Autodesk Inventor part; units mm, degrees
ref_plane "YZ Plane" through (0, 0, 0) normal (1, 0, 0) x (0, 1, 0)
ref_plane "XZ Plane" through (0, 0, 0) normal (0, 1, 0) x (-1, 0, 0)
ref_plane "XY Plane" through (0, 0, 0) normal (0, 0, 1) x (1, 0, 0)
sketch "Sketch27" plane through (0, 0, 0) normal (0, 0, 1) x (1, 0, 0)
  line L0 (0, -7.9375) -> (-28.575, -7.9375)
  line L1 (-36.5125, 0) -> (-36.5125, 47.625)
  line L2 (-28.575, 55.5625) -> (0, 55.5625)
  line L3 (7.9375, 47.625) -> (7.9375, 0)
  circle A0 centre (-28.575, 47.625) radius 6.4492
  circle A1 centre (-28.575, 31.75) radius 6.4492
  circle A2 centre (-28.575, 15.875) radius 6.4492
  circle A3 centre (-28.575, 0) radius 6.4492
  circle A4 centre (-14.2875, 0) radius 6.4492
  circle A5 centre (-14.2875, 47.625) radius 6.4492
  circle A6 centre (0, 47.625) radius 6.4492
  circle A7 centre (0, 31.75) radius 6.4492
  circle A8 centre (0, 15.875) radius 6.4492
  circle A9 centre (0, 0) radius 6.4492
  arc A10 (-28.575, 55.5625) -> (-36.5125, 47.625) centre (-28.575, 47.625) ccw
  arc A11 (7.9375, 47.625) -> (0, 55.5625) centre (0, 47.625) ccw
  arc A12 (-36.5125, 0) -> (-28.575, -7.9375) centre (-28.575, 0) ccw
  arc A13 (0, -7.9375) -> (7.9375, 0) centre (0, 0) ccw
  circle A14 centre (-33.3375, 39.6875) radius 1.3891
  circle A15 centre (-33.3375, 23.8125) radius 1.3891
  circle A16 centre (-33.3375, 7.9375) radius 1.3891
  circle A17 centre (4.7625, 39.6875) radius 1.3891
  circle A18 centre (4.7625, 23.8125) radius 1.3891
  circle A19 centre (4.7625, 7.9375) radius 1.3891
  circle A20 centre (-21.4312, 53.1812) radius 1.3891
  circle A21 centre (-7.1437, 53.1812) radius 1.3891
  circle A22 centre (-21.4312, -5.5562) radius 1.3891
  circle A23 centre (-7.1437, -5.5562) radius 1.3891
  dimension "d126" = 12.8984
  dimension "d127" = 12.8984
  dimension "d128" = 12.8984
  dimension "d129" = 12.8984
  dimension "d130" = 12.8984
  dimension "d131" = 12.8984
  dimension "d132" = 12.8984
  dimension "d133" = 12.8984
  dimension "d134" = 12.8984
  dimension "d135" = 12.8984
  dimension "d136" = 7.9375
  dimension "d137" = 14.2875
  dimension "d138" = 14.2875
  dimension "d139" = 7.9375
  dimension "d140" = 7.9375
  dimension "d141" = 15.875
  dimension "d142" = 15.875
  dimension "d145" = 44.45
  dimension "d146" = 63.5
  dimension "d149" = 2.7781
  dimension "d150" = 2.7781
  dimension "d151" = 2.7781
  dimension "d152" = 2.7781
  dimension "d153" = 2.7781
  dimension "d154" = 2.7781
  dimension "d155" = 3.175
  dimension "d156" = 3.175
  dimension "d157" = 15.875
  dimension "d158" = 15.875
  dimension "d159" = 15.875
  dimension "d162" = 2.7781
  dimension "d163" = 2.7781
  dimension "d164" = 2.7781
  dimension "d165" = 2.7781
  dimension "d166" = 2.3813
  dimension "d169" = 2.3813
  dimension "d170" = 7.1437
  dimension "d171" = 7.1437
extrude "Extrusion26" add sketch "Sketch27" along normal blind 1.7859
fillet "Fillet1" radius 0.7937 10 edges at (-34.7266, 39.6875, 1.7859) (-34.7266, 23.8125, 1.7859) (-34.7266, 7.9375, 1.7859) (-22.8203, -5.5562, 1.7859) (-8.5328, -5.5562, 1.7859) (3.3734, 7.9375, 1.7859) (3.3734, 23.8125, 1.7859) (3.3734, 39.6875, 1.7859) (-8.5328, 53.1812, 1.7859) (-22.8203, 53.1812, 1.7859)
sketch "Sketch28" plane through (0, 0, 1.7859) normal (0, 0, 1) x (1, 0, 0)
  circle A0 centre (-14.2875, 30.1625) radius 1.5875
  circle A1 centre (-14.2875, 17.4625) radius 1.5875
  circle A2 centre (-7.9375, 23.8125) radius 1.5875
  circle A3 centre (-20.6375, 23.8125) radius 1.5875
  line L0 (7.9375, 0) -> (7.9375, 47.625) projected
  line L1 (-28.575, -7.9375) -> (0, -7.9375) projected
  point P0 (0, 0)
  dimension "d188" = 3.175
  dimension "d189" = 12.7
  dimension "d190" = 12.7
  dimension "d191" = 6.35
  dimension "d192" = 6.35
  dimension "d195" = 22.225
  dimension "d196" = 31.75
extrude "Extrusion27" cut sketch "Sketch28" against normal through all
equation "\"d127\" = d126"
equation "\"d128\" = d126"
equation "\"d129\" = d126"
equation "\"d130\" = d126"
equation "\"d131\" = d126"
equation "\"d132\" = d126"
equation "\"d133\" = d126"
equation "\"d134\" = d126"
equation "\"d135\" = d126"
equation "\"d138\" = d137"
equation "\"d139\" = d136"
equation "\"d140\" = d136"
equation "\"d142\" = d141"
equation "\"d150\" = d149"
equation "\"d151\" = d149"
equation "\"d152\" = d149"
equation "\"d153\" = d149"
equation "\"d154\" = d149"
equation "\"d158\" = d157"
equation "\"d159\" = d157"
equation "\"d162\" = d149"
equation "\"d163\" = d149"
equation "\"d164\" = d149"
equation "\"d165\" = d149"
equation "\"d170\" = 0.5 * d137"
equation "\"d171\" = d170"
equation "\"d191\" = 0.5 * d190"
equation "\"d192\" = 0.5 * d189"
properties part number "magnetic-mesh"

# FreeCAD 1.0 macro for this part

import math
import FreeCAD as App
import Part
import Sketcher
from FreeCAD import Vector
Q = App.Units.Quantity


def edges_at(feature, points):
    """Names of the edges that pass closest to the given points."""
    edges = feature.Shape.Edges
    near = lambda p: min(range(len(edges)), key=lambda i: edges[i].distToShape(Part.Vertex(*p))[0])
    return sorted({f"Edge{near(p) + 1}" for p in points})

doc = App.newDocument("Part")
body = doc.addObject("PartDesign::Body", "Body")

# Sketch on XY plane
sketch1 = doc.addObject("Sketcher::SketchObject", "Sketch")
body.addObject(sketch1)
sketch1.AttachmentSupport = (doc.XY_Plane, [""])
sketch1.MapMode = "FlatFace"
sketch1.addGeometry(Part.LineSegment(Vector(-28.6, -7.9, 0), Vector(0, -7.9, 0)), False)
sketch1.addGeometry(Part.ArcOfCircle(Part.Circle(Vector(0, 0, 0), Vector(0, 0, 1), 7.9), math.radians(-90), math.radians(0)), False)
sketch1.addGeometry(Part.LineSegment(Vector(7.9, 0, 0), Vector(7.9, 47.6, 0)), False)
sketch1.addGeometry(Part.ArcOfCircle(Part.Circle(Vector(0, 47.6, 0), Vector(0, 0, 1), 7.9), math.radians(0), math.radians(90)), False)
sketch1.addGeometry(Part.LineSegment(Vector(0, 55.6, 0), Vector(-28.6, 55.6, 0)), False)
sketch1.addGeometry(Part.ArcOfCircle(Part.Circle(Vector(-28.6, 47.6, 0), Vector(0, 0, 1), 7.9), math.radians(90), math.radians(180)), False)
sketch1.addGeometry(Part.LineSegment(Vector(-36.5, 47.6, 0), Vector(-36.5, 0, 0)), False)
sketch1.addGeometry(Part.ArcOfCircle(Part.Circle(Vector(-28.6, 0, 0), Vector(0, 0, 1), 7.9), math.radians(180), math.radians(270)), False)
sketch1.addGeometry(Part.Circle(Vector(-28.6, 0, 0), Vector(0, 0, 1), 6.4), False)
sketch1.addGeometry(Part.Circle(Vector(-21.4, -5.6, 0), Vector(0, 0, 1), 1.4), False)
sketch1.addGeometry(Part.Circle(Vector(-33.3, 7.9, 0), Vector(0, 0, 1), 1.4), False)
sketch1.addGeometry(Part.Circle(Vector(-28.6, 15.9, 0), Vector(0, 0, 1), 6.4), False)
sketch1.addGeometry(Part.Circle(Vector(-7.1, -5.6, 0), Vector(0, 0, 1), 1.4), False)
sketch1.addGeometry(Part.Circle(Vector(-14.3, 0, 0), Vector(0, 0, 1), 6.4), False)
sketch1.addGeometry(Part.Circle(Vector(0, 0, 0), Vector(0, 0, 1), 6.4), False)
sketch1.addGeometry(Part.Circle(Vector(4.8, 7.9, 0), Vector(0, 0, 1), 1.4), False)
sketch1.addGeometry(Part.Circle(Vector(0, 15.9, 0), Vector(0, 0, 1), 6.4), False)
sketch1.addGeometry(Part.Circle(Vector(-33.3, 23.8, 0), Vector(0, 0, 1), 1.4), False)
sketch1.addGeometry(Part.Circle(Vector(-28.6, 31.8, 0), Vector(0, 0, 1), 6.4), False)
sketch1.addGeometry(Part.Circle(Vector(-33.3, 39.7, 0), Vector(0, 0, 1), 1.4), False)
sketch1.addGeometry(Part.Circle(Vector(-28.6, 47.6, 0), Vector(0, 0, 1), 6.4), False)
sketch1.addGeometry(Part.Circle(Vector(-21.4, 53.2, 0), Vector(0, 0, 1), 1.4), False)
sketch1.addGeometry(Part.Circle(Vector(4.8, 23.8, 0), Vector(0, 0, 1), 1.4), False)
sketch1.addGeometry(Part.Circle(Vector(0, 31.8, 0), Vector(0, 0, 1), 6.4), False)
sketch1.addGeometry(Part.Circle(Vector(-14.3, 47.6, 0), Vector(0, 0, 1), 6.4), False)
sketch1.addGeometry(Part.Circle(Vector(-7.1, 53.2, 0), Vector(0, 0, 1), 1.4), False)
sketch1.addGeometry(Part.Circle(Vector(4.8, 39.7, 0), Vector(0, 0, 1), 1.4), False)
sketch1.addGeometry(Part.Circle(Vector(0, 47.6, 0), Vector(0, 0, 1), 6.4), False)
sketch1.addConstraint(Sketcher.Constraint("Tangent", 0, 2, 1, 1))
sketch1.addConstraint(Sketcher.Constraint("Tangent", 1, 2, 2, 1))
sketch1.addConstraint(Sketcher.Constraint("Tangent", 2, 2, 3, 1))
sketch1.addConstraint(Sketcher.Constraint("Tangent", 3, 2, 4, 1))
sketch1.addConstraint(Sketcher.Constraint("Tangent", 4, 2, 5, 1))
sketch1.addConstraint(Sketcher.Constraint("Tangent", 5, 2, 6, 1))
sketch1.addConstraint(Sketcher.Constraint("Tangent", 6, 2, 7, 1))
sketch1.addConstraint(Sketcher.Constraint("Tangent", 7, 2, 0, 1))
sketch1.addConstraint(Sketcher.Constraint("Horizontal", 0))
sketch1.addConstraint(Sketcher.Constraint("Vertical", 2))
sketch1.addConstraint(Sketcher.Constraint("Horizontal", 4))
sketch1.addConstraint(Sketcher.Constraint("Vertical", 6))
sketch1.addConstraint(Sketcher.Constraint("Coincident", 1, 3, -1, 1))
sketch1.addConstraint(Sketcher.Constraint("Coincident", 14, 3, -1, 1))
sketch1.addConstraint(Sketcher.Constraint("Coincident", 8, 3, 7, 3))
sketch1.addConstraint(Sketcher.Constraint("Coincident", 20, 3, 5, 3))
sketch1.addConstraint(Sketcher.Constraint("Coincident", 27, 3, 3, 3))
sketch1.addConstraint(Sketcher.Constraint("Equal", 1, 3))
sketch1.addConstraint(Sketcher.Constraint("Equal", 3, 5))
sketch1.addConstraint(Sketcher.Constraint("Equal", 5, 7))
sketch1.addConstraint(Sketcher.Constraint("Equal", 9, 10))
sketch1.addConstraint(Sketcher.Constraint("Equal", 8, 11))
sketch1.addConstraint(Sketcher.Constraint("Equal", 10, 12))
sketch1.addConstraint(Sketcher.Constraint("Equal", 11, 13))
sketch1.addConstraint(Sketcher.Constraint("Equal", 13, 14))
sketch1.addConstraint(Sketcher.Constraint("Equal", 12, 15))
sketch1.addConstraint(Sketcher.Constraint("Equal", 14, 16))
sketch1.addConstraint(Sketcher.Constraint("Equal", 15, 17))
sketch1.addConstraint(Sketcher.Constraint("Equal", 16, 18))
sketch1.addConstraint(Sketcher.Constraint("Equal", 17, 19))
sketch1.addConstraint(Sketcher.Constraint("Equal", 18, 20))
sketch1.addConstraint(Sketcher.Constraint("Equal", 19, 21))
sketch1.addConstraint(Sketcher.Constraint("Equal", 21, 22))
sketch1.addConstraint(Sketcher.Constraint("Equal", 20, 23))
sketch1.addConstraint(Sketcher.Constraint("Equal", 23, 24))
sketch1.addConstraint(Sketcher.Constraint("Equal", 22, 25))
sketch1.addConstraint(Sketcher.Constraint("Equal", 25, 26))
sketch1.addConstraint(Sketcher.Constraint("Equal", 24, 27))
sketch1.addConstraint(Sketcher.Constraint("PointOnObject", 13, 3, -1))
sketch1.addConstraint(Sketcher.Constraint("PointOnObject", 16, 3, -2))
sketch1.addConstraint(Sketcher.Constraint("PointOnObject", 23, 3, -2))
sketch1.addConstraint(Sketcher.Constraint("Horizontal", 9, 3, 12, 3))
sketch1.addConstraint(Sketcher.Constraint("Horizontal", 10, 3, 15, 3))
sketch1.addConstraint(Sketcher.Constraint("Horizontal", 11, 3, 16, 3))
sketch1.addConstraint(Sketcher.Constraint("Horizontal", 17, 3, 22, 3))
sketch1.addConstraint(Sketcher.Constraint("Horizontal", 18, 3, 23, 3))
sketch1.addConstraint(Sketcher.Constraint("Horizontal", 20, 3, 24, 3))
sketch1.addConstraint(Sketcher.Constraint("Horizontal", 21, 3, 25, 3))
sketch1.addConstraint(Sketcher.Constraint("Horizontal", 19, 3, 26, 3))
sketch1.addConstraint(Sketcher.Constraint("Vertical", 8, 3, 11, 3))
sketch1.addConstraint(Sketcher.Constraint("Vertical", 10, 3, 17, 3))
sketch1.addConstraint(Sketcher.Constraint("Vertical", 11, 3, 18, 3))
sketch1.addConstraint(Sketcher.Constraint("Vertical", 17, 3, 19, 3))
sketch1.addConstraint(Sketcher.Constraint("Vertical", 9, 3, 21, 3))
sketch1.addConstraint(Sketcher.Constraint("Vertical", 15, 3, 22, 3))
sketch1.addConstraint(Sketcher.Constraint("Vertical", 13, 3, 24, 3))
sketch1.addConstraint(Sketcher.Constraint("Vertical", 12, 3, 25, 3))
sketch1.addConstraint(Sketcher.Constraint("Vertical", 22, 3, 26, 3))
sketch1.addConstraint(Sketcher.Constraint("Diameter", 9, Q("0.109378 in")))
sketch1.addConstraint(Sketcher.Constraint("Radius", 1, Q("0.3125 in")))
sketch1.addConstraint(Sketcher.Constraint("Diameter", 8, Q("0.5078 in")))
sketch1.addConstraint(Sketcher.Constraint("DistanceY", -1, 1, 10, 3, Q("0.3125 in")))
sketch1.addConstraint(Sketcher.Constraint("DistanceY", -1, 1, 11, 3, Q("0.625 in")))
sketch1.addConstraint(Sketcher.Constraint("DistanceX", 12, 3, -1, 1, Q("0.281248 in")))
sketch1.addConstraint(Sketcher.Constraint("DistanceX", 13, 3, -1, 1, Q("0.5625 in")))
sketch1.addConstraint(Sketcher.Constraint("DistanceX", 7, 3, 9, 3, Q("0.281252 in")))
sketch1.addConstraint(Sketcher.Constraint("DistanceX", 9, 3, 12, 3, Q("0.5625 in")))
sketch1.addConstraint(Sketcher.Constraint("DistanceY", 11, 3, 17, 3, Q("0.3125 in")))
sketch1.addConstraint(Sketcher.Constraint("DistanceY", 17, 3, 18, 3, Q("0.3125 in")))
sketch1.addConstraint(Sketcher.Constraint("DistanceY", 18, 3, 5, 3, Q("0.625 in")))
sketch1.addConstraint(Sketcher.Constraint("DistanceY", 19, 3, 5, 3, Q("0.3125 in")))
sketch1.addConstraint(Sketcher.Constraint("DistanceY", 0, 2, 12, 3, Q("0.093752 in")))
sketch1.addConstraint(Sketcher.Constraint("DistanceX", 15, 3, 1, 2, Q("0.125 in")))
sketch1.addConstraint(Sketcher.Constraint("DistanceY", 25, 3, 3, 2, Q("0.093752 in")))
sketch1.addConstraint(Sketcher.Constraint("DistanceX", 5, 2, 19, 3, Q("0.125 in")))
pad1 = doc.addObject("PartDesign::Pad", "Pad")
body.addObject(pad1)
pad1.Profile = sketch1
pad1.Length = Q("0.070311 in")
doc.recompute()

fillet = doc.addObject("PartDesign::Fillet", "Fillet")
body.addObject(fillet)
fillet.Base = (pad1, edges_at(pad1, [
    (-34.727, 39.688, 1.786),
    (-34.727, 23.812, 1.786),
    (-34.727, 7.938, 1.786),
    (-22.82, -5.556, 1.786),
    (-8.533, -5.556, 1.786),
    (3.373, 7.938, 1.786),
    (3.373, 23.812, 1.786),
    (3.373, 39.688, 1.786),
    (-8.533, 53.181, 1.786),
    (-22.82, 53.181, 1.786),
]))
fillet.Radius = Q("0.031248 in")

# Sketch on XY plane
sketch2 = doc.addObject("Sketcher::SketchObject", "Sketch001")
body.addObject(sketch2)
sketch2.AttachmentSupport = (doc.XY_Plane, [""])
sketch2.MapMode = "FlatFace"
sketch2.AttachmentOffset = App.Placement(Vector(0, 0, 0.070311 * 25.4), App.Rotation())
sketch2.addGeometry(Part.Circle(Vector(-14.3, 30.2, 0), Vector(0, 0, 1), 1.6), False)
sketch2.addGeometry(Part.Circle(Vector(-14.3, 17.5, 0), Vector(0, 0, 1), 1.6), False)
sketch2.addGeometry(Part.Circle(Vector(-7.9, 23.8, 0), Vector(0, 0, 1), 1.6), False)
sketch2.addGeometry(Part.Circle(Vector(-20.6, 23.8, 0), Vector(0, 0, 1), 1.6), False)
sketch2.addConstraint(Sketcher.Constraint("Equal", 0, 1))
sketch2.addConstraint(Sketcher.Constraint("Equal", 1, 2))
sketch2.addConstraint(Sketcher.Constraint("Equal", 2, 3))
sketch2.addConstraint(Sketcher.Constraint("Horizontal", 2, 3, 3, 3))
sketch2.addConstraint(Sketcher.Constraint("Vertical", 0, 3, 1, 3))
sketch2.addConstraint(Sketcher.Constraint("Diameter", 0, Q("0.125 in")))
sketch2.addConstraint(Sketcher.Constraint("DistanceY", 1, 3, 0, 3, Q("0.5 in")))
sketch2.addConstraint(Sketcher.Constraint("DistanceX", 3, 3, 2, 3, Q("0.5 in")))
sketch2.addConstraint(Sketcher.Constraint("DistanceX", 0, 3, 2, 3, Q("0.25 in")))
sketch2.addConstraint(Sketcher.Constraint("DistanceY", 2, 3, 0, 3, Q("0.25 in")))
sketch2.addConstraint(Sketcher.Constraint("DistanceX", 0, 3, -1, 1, Q("0.5625 in")))
sketch2.addConstraint(Sketcher.Constraint("DistanceY", -1, 1, 0, 3, Q("1.1875 in")))
pocket1 = doc.addObject("PartDesign::Pocket", "Pocket")
body.addObject(pocket1)
pocket1.Profile = sketch2
pocket1.Type = "ThroughAll"

doc.recompute()
